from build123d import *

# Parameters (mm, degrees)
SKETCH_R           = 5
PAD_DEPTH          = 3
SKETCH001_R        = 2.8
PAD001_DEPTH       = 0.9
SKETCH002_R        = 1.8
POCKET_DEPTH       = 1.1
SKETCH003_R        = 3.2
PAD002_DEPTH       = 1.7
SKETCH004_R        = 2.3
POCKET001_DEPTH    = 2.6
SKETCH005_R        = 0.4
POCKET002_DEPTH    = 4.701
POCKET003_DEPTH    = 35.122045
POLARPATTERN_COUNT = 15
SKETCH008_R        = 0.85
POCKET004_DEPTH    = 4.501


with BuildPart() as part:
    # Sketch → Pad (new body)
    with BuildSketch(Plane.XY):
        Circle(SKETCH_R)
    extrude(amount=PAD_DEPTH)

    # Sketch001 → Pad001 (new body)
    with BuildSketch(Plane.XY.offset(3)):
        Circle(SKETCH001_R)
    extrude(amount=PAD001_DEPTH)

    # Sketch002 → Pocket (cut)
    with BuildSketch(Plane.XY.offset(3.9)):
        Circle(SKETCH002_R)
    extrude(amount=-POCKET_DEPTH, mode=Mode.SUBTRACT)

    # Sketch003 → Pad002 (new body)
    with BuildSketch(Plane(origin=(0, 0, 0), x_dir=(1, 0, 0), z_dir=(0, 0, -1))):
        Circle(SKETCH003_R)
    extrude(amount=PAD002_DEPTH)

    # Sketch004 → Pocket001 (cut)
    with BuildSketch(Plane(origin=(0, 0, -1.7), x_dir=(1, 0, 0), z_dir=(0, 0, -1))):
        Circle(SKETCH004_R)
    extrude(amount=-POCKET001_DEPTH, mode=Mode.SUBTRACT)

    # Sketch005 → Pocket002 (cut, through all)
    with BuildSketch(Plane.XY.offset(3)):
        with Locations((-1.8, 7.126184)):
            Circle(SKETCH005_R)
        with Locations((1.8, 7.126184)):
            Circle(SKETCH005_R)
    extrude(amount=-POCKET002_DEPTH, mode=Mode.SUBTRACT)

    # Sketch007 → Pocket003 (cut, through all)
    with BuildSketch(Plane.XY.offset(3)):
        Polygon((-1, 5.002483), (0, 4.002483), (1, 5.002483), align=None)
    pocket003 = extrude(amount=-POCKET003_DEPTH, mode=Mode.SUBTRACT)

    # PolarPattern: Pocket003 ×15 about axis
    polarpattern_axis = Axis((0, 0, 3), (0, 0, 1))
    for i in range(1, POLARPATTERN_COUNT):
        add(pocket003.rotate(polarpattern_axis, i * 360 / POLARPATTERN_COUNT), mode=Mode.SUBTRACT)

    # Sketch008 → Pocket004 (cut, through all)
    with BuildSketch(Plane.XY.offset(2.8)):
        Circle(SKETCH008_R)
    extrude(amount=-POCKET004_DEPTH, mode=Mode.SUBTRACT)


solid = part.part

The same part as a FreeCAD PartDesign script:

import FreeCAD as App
import Part
import Sketcher
from FreeCAD import Vector


def add_polygon(sketch, points):
    """Adds a closed chain of lines whose ends are joined by coincident constraints."""
    first, n = sketch.GeometryCount, len(points)
    for a, b in zip(points, points[1:] + points[:1]):
        sketch.addGeometry(Part.LineSegment(App.Vector(*a, 0), App.Vector(*b, 0)), False)
    for i in range(n):
        sketch.addConstraint(Sketcher.Constraint("Coincident", first + i, 2, first + (i + 1) % n, 1))

doc = App.newDocument("Part")
body = doc.addObject("PartDesign::Body", "Body")

sketch1 = doc.addObject("Sketcher::SketchObject", "Sketch")
body.addObject(sketch1)
sketch1.AttachmentSupport = (doc.XY_Plane, [""])
sketch1.MapMode = "FlatFace"
sketch1.addGeometry(Part.Circle(Vector(0, 0, 0), Vector(0, 0, 1), 5), False)
sketch1.addConstraint([
    Sketcher.Constraint("Coincident", 0, 3, -1, 1),
    Sketcher.Constraint("Diameter", 0, 10.0),
])
pad1 = doc.addObject("PartDesign::Pad", "Pad")
body.addObject(pad1)
pad1.Profile = sketch1
pad1.Length = 3

sketch2 = doc.addObject("Sketcher::SketchObject", "Sketch001")
body.addObject(sketch2)
sketch2.AttachmentSupport = (doc.XY_Plane, [""])
sketch2.MapMode = "FlatFace"
sketch2.AttachmentOffset = App.Placement(Vector(0, 0, 3), App.Rotation())
sketch2.addGeometry(Part.Circle(Vector(0, 0, 0), Vector(0, 0, 1), 2.8), False)
sketch2.addConstraint([
    Sketcher.Constraint("Coincident", 0, 3, -1, 1),
    Sketcher.Constraint("Diameter", 0, 5.6),
])
pad2 = doc.addObject("PartDesign::Pad", "Pad001")
body.addObject(pad2)
pad2.Profile = sketch2
pad2.Length = 0.9

sketch3 = doc.addObject("Sketcher::SketchObject", "Sketch002")
body.addObject(sketch3)
sketch3.AttachmentSupport = (doc.XY_Plane, [""])
sketch3.MapMode = "FlatFace"
sketch3.AttachmentOffset = App.Placement(Vector(0, 0, 3.9), App.Rotation())
sketch3.addGeometry(Part.Circle(Vector(0, 0, 0), Vector(0, 0, 1), 1.8), False)
sketch3.addConstraint([
    Sketcher.Constraint("Coincident", 0, 3, -1, 1),
    Sketcher.Constraint("Diameter", 0, 3.6),
])
pocket1 = doc.addObject("PartDesign::Pocket", "Pocket")
body.addObject(pocket1)
pocket1.Profile = sketch3
pocket1.Length = 1.1

sketch4 = doc.addObject("Sketcher::SketchObject", "Sketch003")
body.addObject(sketch4)
sketch4.AttachmentSupport = (doc.XY_Plane, [""])
sketch4.MapMode = "FlatFace"
sketch4.addGeometry(Part.Circle(Vector(0, 0, 0), Vector(0, 0, 1), 3.2), False)
sketch4.addConstraint([
    Sketcher.Constraint("Coincident", 0, 3, -1, 1),
    Sketcher.Constraint("Diameter", 0, 6.4),
])
pad3 = doc.addObject("PartDesign::Pad", "Pad002")
body.addObject(pad3)
pad3.Profile = sketch4
pad3.Length = 1.7
pad3.Reversed = True

sketch5 = doc.addObject("Sketcher::SketchObject", "Sketch004")
body.addObject(sketch5)
sketch5.AttachmentSupport = (doc.XY_Plane, [""])
sketch5.MapMode = "FlatFace"
sketch5.AttachmentOffset = App.Placement(Vector(0, 0, -1.7), App.Rotation())
sketch5.addGeometry(Part.Circle(Vector(0, 0, 0), Vector(0, 0, 1), 2.3), False)
sketch5.addConstraint([
    Sketcher.Constraint("Coincident", 0, 3, -1, 1),
    Sketcher.Constraint("Diameter", 0, 4.6),
])
pocket2 = doc.addObject("PartDesign::Pocket", "Pocket001")
body.addObject(pocket2)
pocket2.Profile = sketch5
pocket2.Length = 2.6
pocket2.Reversed = True

sketch6 = doc.addObject("Sketcher::SketchObject", "Sketch005")
body.addObject(sketch6)
sketch6.AttachmentSupport = (doc.XY_Plane, [""])
sketch6.MapMode = "FlatFace"
sketch6.AttachmentOffset = App.Placement(Vector(0, 0, 3), App.Rotation())
sketch6.addGeometry([
    Part.Circle(Vector(-1.8, 7.13, 0), Vector(0, 0, 1), 0.4),
    Part.Circle(Vector(1.8, 7.13, 0), Vector(0, 0, 1), 0.4),
], False)
sketch6.addConstraint([
    Sketcher.Constraint("Equal", 0, 1),
    Sketcher.Constraint("Symmetric", 0, 3, 1, 3, -2),
    Sketcher.Constraint("Diameter", 0, 0.8),
    Sketcher.Constraint("DistanceX", 0, 3, -1, 1, 1.8),
    Sketcher.Constraint("DistanceY", -1, 1, 0, 3, 7.126184),
])
pocket3 = doc.addObject("PartDesign::Pocket", "Pocket002")
body.addObject(pocket3)
pocket3.Profile = sketch6
pocket3.Type = "ThroughAll"

sketch7 = doc.addObject("Sketcher::SketchObject", "Sketch006")
body.addObject(sketch7)
sketch7.AttachmentSupport = (doc.XY_Plane, [""])
sketch7.MapMode = "FlatFace"
sketch7.AttachmentOffset = App.Placement(Vector(0, 0, 3), App.Rotation())
add_polygon(sketch7, [(-1, 5), (0, 4), (1, 5)])
sketch7.addConstraint([
    Sketcher.Constraint("Horizontal", 2),
    Sketcher.Constraint("PointOnObject", 0, 2, -2),
    Sketcher.Constraint("Perpendicular", 0, 1),
    Sketcher.Constraint("Equal", 0, 1),
    Sketcher.Constraint("DistanceX", 2, 2, 2, 1, 2.0),
    Sketcher.Constraint("DistanceY", -1, 1, 0, 2, 4.002483),
])
pocket4 = doc.addObject("PartDesign::Pocket", "Pocket003")
body.addObject(pocket4)
pocket4.Profile = sketch7
pocket4.Type = "ThroughAll"
doc.recompute()

polarpattern = doc.addObject("PartDesign::PolarPattern", "PolarPattern")
body.addObject(polarpattern)
polarpattern.Originals = [pocket4]
polarpattern.Axis = (doc.Z_Axis, [""])
polarpattern.Angle = 360
polarpattern.Occurrences = 15
body.Tip = polarpattern

sketch8 = doc.addObject("Sketcher::SketchObject", "Sketch007")
body.addObject(sketch8)
sketch8.AttachmentSupport = (doc.XY_Plane, [""])
sketch8.MapMode = "FlatFace"
sketch8.AttachmentOffset = App.Placement(Vector(0, 0, 2.8), App.Rotation())
sketch8.addGeometry(Part.Circle(Vector(0, 0, 0), Vector(0, 0, 1), 0.8), False)
sketch8.addConstraint([
    Sketcher.Constraint("Coincident", 0, 3, -1, 1),
    Sketcher.Constraint("Diameter", 0, 1.7),
])
pocket5 = doc.addObject("PartDesign::Pocket", "Pocket004")
body.addObject(pocket5)
pocket5.Profile = sketch8
pocket5.Type = "ThroughAll"

doc.recompute()
